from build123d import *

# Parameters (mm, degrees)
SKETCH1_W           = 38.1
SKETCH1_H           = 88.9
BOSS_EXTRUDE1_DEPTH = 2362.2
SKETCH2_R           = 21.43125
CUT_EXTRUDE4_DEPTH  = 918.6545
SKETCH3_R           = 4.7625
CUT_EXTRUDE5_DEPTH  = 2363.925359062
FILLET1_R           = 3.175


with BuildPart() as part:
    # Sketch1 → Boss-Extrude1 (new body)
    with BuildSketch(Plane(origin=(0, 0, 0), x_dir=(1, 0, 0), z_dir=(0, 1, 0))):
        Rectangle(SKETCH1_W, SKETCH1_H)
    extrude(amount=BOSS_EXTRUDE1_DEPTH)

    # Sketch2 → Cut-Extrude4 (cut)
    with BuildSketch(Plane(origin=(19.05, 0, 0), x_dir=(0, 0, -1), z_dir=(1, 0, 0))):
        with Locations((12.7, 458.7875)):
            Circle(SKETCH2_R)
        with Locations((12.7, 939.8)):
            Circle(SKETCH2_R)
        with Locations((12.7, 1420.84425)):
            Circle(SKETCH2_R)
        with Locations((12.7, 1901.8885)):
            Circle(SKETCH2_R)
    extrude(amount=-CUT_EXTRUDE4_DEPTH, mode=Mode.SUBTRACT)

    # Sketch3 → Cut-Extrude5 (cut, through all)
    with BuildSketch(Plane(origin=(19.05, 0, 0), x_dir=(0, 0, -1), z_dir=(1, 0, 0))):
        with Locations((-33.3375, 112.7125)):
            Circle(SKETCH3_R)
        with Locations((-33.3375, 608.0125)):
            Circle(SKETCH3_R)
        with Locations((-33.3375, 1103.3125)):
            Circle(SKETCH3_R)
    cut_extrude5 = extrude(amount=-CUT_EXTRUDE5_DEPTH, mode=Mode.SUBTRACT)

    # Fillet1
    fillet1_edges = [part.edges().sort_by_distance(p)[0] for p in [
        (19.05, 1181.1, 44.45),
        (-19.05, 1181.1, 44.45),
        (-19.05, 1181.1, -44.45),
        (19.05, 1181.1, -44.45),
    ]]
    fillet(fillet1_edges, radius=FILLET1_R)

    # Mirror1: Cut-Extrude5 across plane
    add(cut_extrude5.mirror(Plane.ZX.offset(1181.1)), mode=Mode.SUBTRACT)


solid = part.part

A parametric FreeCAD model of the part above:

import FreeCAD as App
import Part
import Sketcher
from FreeCAD import Vector
Q = App.Units.Quantity


def edges_at(feature, points):
    """Names of the edges that pass closest to the given points."""
    edges = feature.Shape.Edges
    near = lambda p: min(range(len(edges)), key=lambda i: edges[i].distToShape(Part.Vertex(*p))[0])
    return sorted({f"Edge{near(p) + 1}" for p in points})


def add_polygon(sketch, points):
    """Adds a closed chain of lines whose ends are joined by coincident constraints."""
    first, n = sketch.GeometryCount, len(points)
    for a, b in zip(points, points[1:] + points[:1]):
        sketch.addGeometry(Part.LineSegment(App.Vector(*a, 0), App.Vector(*b, 0)), False)
    for i in range(n):
        sketch.addConstraint(Sketcher.Constraint("Coincident", first + i, 2, first + (i + 1) % n, 1))

doc = App.newDocument("Part")
body = doc.addObject("PartDesign::Body", "Body")

# Sketch on XZ plane
sketch1 = doc.addObject("Sketcher::SketchObject", "Sketch")
body.addObject(sketch1)
sketch1.AttachmentSupport = (doc.XZ_Plane, [""])
sketch1.MapMode = "FlatFace"
add_polygon(sketch1, [(-19, -44), (-19, 44), (19, 44), (19, -44)])  # lines 0-3
sketch1.addConstraint([
    Sketcher.Constraint("Vertical", 0),
    Sketcher.Constraint("Horizontal", 1),
    Sketcher.Constraint("Vertical", 2),
    Sketcher.Constraint("Horizontal", 3),
    Sketcher.Constraint("Symmetric", 0, 2, 2, 2, -1, 1),
    Sketcher.Constraint("DistanceX", 1, 1, 1, 2, Q("1.5 in")),
    Sketcher.Constraint("DistanceY", 0, 1, 0, 2, Q("3.5 in")),
])
pad1 = doc.addObject("PartDesign::Pad", "Pad")
body.addObject(pad1)
pad1.Profile = sketch1
pad1.Length = Q("93 in")
pad1.Reversed = True

# Sketch on YZ plane
sketch2 = doc.addObject("Sketcher::SketchObject", "Sketch001")
body.addObject(sketch2)
sketch2.AttachmentSupport = (doc.YZ_Plane, [""])
sketch2.MapMode = "FlatFace"
sketch2.AttachmentOffset = App.Placement(Vector(0, 0, 0.75 * 25.4), App.Rotation())
sketch2.addGeometry([
    Part.Circle(Vector(459, -13, 0), Vector(0, 0, 1), 21),
    Part.Circle(Vector(940, -13, 0), Vector(0, 0, 1), 21),
    Part.Circle(Vector(1421, -13, 0), Vector(0, 0, 1), 21),
    Part.Circle(Vector(1902, -13, 0), Vector(0, 0, 1), 21),
], False)
sketch2.addConstraint([
    Sketcher.Constraint("Equal", 0, 1),
    Sketcher.Constraint("Equal", 1, 2),
    Sketcher.Constraint("Equal", 2, 3),
    Sketcher.Constraint("Horizontal", 0, 3, 1, 3),
    Sketcher.Constraint("Horizontal", 1, 3, 2, 3),
    Sketcher.Constraint("Horizontal", 2, 3, 3, 3),
    Sketcher.Constraint("Diameter", 0, Q("1.6875 in")),
    Sketcher.Constraint("DistanceX", -1, 1, 1, 3, Q("37 in")),
    Sketcher.Constraint("DistanceY", 0, 3, -1, 1, Q("0.5 in")),
    Sketcher.Constraint("DistanceX", -1, 1, 0, 3, Q("18.0625 in")),
    Sketcher.Constraint("DistanceX", 0, 3, 3, 3, Q("56.815 in")),
    Sketcher.Constraint("DistanceX", -1, 1, 2, 3, 1420.84425),
])
pocket1 = doc.addObject("PartDesign::Pocket", "Pocket")
body.addObject(pocket1)
pocket1.Profile = sketch2
pocket1.Length = Q("36.1675 in")

# Sketch on YZ plane
sketch3 = doc.addObject("Sketcher::SketchObject", "Sketch002")
body.addObject(sketch3)
sketch3.AttachmentSupport = (doc.YZ_Plane, [""])
sketch3.MapMode = "FlatFace"
sketch3.AttachmentOffset = App.Placement(Vector(0, 0, 0.75 * 25.4), App.Rotation())
sketch3.addGeometry([
    Part.Circle(Vector(112.7, 33.3, 0), Vector(0, 0, 1), 4.8),
    Part.Circle(Vector(608, 33.3, 0), Vector(0, 0, 1), 4.8),
    Part.Circle(Vector(1103.3, 33.3, 0), Vector(0, 0, 1), 4.8),
], False)
sketch3.addConstraint([
    Sketcher.Constraint("Equal", 0, 1),
    Sketcher.Constraint("Equal", 1, 2),
    Sketcher.Constraint("Horizontal", 0, 3, 1, 3),
    Sketcher.Constraint("Horizontal", 1, 3, 2, 3),
    Sketcher.Constraint("Diameter", 0, Q("0.375 in")),
    Sketcher.Constraint("DistanceX", 0, 3, 2, 3, Q("39 in")),
    Sketcher.Constraint("DistanceX", 0, 3, 1, 3, Q("19.5 in")),
    Sketcher.Constraint("DistanceX", -1, 1, 0, 3, Q("4.4375 in")),
    Sketcher.Constraint("DistanceY", -1, 1, 0, 3, Q("1.3125 in")),
])
pocket2 = doc.addObject("PartDesign::Pocket", "Pocket001")
body.addObject(pocket2)
pocket2.Profile = sketch3
pocket2.Type = "ThroughAll"
doc.recompute()

fillet = doc.addObject("PartDesign::Fillet", "Fillet")
body.addObject(fillet)
fillet.Base = (pocket2, edges_at(pocket2, [
    (19.05, 1181.1, 44.45),
    (-19.05, 1181.1, 44.45),
    (-19.05, 1181.1, -44.45),
    (19.05, 1181.1, -44.45),
]))
fillet.Radius = Q("0.125 in")
doc.recompute()

datumplane = doc.addObject("PartDesign::Plane", "DatumPlane")
body.addObject(datumplane)
datumplane.AttachmentSupport = (doc.XZ_Plane, [""])
datumplane.MapMode = "FlatFace"
datumplane.AttachmentOffset = App.Placement(Vector(0, 0, -46.5 * 25.4), App.Rotation())
mirrored = doc.addObject("PartDesign::Mirrored", "Mirrored")
body.addObject(mirrored)
mirrored.Originals = [pocket2]
mirrored.MirrorPlane = (datumplane, [""])
body.Tip = mirrored

doc.recompute()
